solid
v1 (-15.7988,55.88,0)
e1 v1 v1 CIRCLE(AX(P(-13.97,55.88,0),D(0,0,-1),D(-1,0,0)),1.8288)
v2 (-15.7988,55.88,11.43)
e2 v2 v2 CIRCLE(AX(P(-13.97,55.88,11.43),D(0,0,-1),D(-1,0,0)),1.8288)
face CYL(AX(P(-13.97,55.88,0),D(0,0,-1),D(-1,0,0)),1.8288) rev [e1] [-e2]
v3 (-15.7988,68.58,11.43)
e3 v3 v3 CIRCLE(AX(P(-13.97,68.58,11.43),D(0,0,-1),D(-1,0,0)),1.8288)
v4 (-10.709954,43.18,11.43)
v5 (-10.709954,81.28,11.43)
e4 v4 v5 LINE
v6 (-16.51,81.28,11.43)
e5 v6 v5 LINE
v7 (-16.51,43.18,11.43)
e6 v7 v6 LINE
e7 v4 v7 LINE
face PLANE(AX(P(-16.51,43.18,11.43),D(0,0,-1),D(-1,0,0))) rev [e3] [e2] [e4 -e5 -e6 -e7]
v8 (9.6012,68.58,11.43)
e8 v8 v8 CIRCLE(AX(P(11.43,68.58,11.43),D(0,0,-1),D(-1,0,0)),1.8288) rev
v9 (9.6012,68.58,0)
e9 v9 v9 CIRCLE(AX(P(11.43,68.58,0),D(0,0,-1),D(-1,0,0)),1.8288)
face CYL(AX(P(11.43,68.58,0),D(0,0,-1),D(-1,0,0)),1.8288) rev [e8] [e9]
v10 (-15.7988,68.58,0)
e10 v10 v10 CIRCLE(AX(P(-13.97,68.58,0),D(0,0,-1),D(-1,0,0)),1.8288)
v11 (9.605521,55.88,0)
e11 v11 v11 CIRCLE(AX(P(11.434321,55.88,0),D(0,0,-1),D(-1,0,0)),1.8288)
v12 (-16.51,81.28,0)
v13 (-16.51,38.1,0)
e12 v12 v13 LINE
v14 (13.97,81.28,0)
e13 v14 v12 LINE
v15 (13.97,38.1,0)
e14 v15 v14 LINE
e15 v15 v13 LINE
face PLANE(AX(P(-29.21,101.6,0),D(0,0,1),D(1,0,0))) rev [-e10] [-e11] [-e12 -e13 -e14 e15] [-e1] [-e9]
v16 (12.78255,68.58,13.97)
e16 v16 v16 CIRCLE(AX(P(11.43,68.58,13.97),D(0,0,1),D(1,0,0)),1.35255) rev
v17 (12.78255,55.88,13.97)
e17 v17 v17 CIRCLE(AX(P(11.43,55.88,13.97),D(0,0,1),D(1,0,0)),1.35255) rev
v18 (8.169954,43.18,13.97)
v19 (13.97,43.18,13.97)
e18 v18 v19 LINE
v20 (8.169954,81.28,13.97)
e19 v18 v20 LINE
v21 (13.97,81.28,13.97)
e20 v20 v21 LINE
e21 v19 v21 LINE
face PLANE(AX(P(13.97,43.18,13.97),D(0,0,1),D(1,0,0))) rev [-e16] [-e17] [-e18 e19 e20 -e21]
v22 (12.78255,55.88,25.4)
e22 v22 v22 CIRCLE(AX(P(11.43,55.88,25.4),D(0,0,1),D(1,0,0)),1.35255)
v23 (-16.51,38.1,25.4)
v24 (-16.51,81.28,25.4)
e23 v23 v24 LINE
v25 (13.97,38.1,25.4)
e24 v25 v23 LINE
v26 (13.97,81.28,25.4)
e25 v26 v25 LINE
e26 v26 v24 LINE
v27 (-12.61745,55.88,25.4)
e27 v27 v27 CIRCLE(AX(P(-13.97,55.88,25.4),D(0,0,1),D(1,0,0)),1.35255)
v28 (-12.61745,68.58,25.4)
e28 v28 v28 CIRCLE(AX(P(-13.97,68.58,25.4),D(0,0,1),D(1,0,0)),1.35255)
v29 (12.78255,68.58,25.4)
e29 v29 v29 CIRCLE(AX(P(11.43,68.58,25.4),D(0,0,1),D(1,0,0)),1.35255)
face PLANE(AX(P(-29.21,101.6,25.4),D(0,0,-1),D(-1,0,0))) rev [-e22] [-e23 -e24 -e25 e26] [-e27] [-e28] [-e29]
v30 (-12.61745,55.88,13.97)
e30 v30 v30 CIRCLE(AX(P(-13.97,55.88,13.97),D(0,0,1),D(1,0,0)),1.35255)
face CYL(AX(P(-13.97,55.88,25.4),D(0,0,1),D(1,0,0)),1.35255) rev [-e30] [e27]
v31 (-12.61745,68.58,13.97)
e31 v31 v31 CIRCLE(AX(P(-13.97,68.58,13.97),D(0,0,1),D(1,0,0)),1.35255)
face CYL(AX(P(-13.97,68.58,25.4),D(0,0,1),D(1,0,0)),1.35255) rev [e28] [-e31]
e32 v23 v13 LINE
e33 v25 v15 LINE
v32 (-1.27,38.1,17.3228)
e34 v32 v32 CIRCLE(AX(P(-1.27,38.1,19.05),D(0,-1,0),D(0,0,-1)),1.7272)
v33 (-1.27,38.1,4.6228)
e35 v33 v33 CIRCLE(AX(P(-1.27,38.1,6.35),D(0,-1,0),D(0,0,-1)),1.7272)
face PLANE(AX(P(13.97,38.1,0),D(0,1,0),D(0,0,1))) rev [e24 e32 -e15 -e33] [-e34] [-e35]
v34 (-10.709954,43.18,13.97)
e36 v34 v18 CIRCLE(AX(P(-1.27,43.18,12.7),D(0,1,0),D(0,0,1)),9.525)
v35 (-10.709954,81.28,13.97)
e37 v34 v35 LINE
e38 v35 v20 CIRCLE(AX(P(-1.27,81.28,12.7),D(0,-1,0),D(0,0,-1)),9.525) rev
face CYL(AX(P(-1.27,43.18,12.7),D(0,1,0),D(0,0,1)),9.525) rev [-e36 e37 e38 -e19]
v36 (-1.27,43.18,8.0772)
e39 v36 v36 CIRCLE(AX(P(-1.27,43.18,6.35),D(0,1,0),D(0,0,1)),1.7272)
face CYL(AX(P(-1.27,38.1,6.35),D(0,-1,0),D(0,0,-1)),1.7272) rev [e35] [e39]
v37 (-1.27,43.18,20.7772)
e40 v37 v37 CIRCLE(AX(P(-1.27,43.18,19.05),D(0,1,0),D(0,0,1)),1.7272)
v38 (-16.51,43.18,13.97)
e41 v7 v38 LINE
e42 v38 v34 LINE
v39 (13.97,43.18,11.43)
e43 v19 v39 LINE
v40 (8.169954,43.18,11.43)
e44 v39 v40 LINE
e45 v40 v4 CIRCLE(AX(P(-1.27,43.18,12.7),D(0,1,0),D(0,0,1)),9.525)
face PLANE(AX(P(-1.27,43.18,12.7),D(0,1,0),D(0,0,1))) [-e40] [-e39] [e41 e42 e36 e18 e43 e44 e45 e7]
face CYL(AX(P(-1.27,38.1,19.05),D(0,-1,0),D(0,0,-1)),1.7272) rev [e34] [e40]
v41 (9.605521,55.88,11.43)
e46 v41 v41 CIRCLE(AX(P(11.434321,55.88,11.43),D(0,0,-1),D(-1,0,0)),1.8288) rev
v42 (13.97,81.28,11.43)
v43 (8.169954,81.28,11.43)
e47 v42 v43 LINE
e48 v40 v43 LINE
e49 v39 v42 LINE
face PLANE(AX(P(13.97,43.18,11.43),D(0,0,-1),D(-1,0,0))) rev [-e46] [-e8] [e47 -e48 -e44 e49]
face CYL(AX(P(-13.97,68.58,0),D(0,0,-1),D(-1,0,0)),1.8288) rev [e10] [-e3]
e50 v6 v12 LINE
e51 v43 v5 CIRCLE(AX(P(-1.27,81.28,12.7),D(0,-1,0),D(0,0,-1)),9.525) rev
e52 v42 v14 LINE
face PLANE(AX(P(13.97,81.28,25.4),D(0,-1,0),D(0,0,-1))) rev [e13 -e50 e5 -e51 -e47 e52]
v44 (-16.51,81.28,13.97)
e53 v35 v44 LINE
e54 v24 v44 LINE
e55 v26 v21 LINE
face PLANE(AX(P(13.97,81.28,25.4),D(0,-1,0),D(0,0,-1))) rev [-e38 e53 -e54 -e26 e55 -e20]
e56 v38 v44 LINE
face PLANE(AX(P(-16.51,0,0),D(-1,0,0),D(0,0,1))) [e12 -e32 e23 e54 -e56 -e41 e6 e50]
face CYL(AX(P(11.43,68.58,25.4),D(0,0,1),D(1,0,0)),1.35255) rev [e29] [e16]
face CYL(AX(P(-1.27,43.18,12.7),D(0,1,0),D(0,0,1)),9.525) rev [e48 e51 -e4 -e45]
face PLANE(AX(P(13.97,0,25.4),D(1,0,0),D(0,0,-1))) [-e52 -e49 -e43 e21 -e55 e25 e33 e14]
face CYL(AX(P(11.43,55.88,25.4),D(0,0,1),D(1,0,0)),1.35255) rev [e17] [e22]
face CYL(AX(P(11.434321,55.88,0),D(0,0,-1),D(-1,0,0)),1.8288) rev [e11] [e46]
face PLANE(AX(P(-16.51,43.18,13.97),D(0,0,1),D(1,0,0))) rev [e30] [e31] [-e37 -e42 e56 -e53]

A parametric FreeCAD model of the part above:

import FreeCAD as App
import Part
import Sketcher
from FreeCAD import Vector
Q = App.Units.Quantity


def add_polygon(sketch, points):
    """Adds a closed chain of lines whose ends are joined by coincident constraints."""
    first, n = sketch.GeometryCount, len(points)
    for a, b in zip(points, points[1:] + points[:1]):
        sketch.addGeometry(Part.LineSegment(App.Vector(*a, 0), App.Vector(*b, 0)), False)
    for i in range(n):
        sketch.addConstraint(Sketcher.Constraint("Coincident", first + i, 2, first + (i + 1) % n, 1))

doc = App.newDocument("Part")
body = doc.addObject("PartDesign::Body", "Body")

sketch1 = body.newObject("Sketcher::SketchObject", "Sketch")
sketch1.AttachmentSupport = (doc.getObject("XZ_Plane"), [""])
sketch1.MapMode = "FlatFace"
add_polygon(sketch1, [(-29.21, 0), (-29.21, 25.4), (26.67, 25.4), (26.67, 0)])
sketch1.addConstraint([
    Sketcher.Constraint("Vertical", 0),
    Sketcher.Constraint("Horizontal", 1),
    Sketcher.Constraint("Vertical", 2),
    Sketcher.Constraint("Horizontal", 3),
    Sketcher.Constraint("PointOnObject", 2, 2, -1),
    Sketcher.Constraint("DistanceY", 0, 1, 0, 2, Q("1 in")),
    Sketcher.Constraint("DistanceX", 1, 1, 1, 2, Q("2.2 in")),
    Sketcher.Constraint("DistanceX", 0, 2, -1, 1, Q("1.15 in")),
])
pad1 = body.newObject("PartDesign::Pad", "Pad")
pad1.Profile = sketch1
pad1.Length = Q("4 in")
pad1.Reversed = True

sketch2 = body.newObject("Sketcher::SketchObject", "Sketch001")
sketch2.AttachmentSupport = (doc.getObject("XZ_Plane"), [""])
sketch2.MapMode = "FlatFace"
sketch2.AttachmentOffset = App.Placement(Vector(0, 0, -4 * 25.4), App.Rotation())
sketch2.addGeometry(Part.Circle(Vector(-1.27, 12.7, 0), Vector(0, 0, 1), 9.525), False)
sketch2.addConstraint([
    Sketcher.Constraint("Diameter", 0, Q("0.75 in")),
    Sketcher.Constraint("DistanceY", -1, 1, 0, 3, Q("0.5 in")),
    Sketcher.Constraint("DistanceX", 0, 3, -1, 1, Q("0.05 in")),
])
pocket1 = body.newObject("PartDesign::Pocket", "Pocket")
pocket1.Profile = sketch2
pocket1.Length = Q("2.3 in")
pocket1.Reversed = True

sketch3 = body.newObject("Sketcher::SketchObject", "Sketch002")
sketch3.AttachmentSupport = (doc.getObject("YZ_Plane"), [""])
sketch3.MapMode = "FlatFace"
sketch3.AttachmentOffset = App.Placement(Vector(0, 0, 1.05 * 25.4), App.Rotation())
add_polygon(sketch3, [(101.6, 25.4), (0, 25.4), (0, 0), (101.6, 0)])
sketch3.addConstraint([
    Sketcher.Constraint("Horizontal", 0),
    Sketcher.Constraint("Vertical", 1),
    Sketcher.Constraint("Horizontal", 2),
    Sketcher.Constraint("Vertical", 3),
    Sketcher.Constraint("Coincident", 1, 2, -1, 1),
    Sketcher.Constraint("DistanceX", 0, 2, 0, 1, Q("4 in")),
    Sketcher.Constraint("DistanceY", 1, 2, 1, 1, Q("1 in")),
])
pocket2 = body.newObject("PartDesign::Pocket", "Pocket001")
pocket2.Profile = sketch3
pocket2.Length = Q("0.5 in")

sketch4 = body.newObject("Sketcher::SketchObject", "Sketch003")
sketch4.AttachmentSupport = (doc.getObject("YZ_Plane"), [""])
sketch4.MapMode = "FlatFace"
sketch4.AttachmentOffset = App.Placement(Vector(0, 0, -1.15 * 25.4), App.Rotation())
add_polygon(sketch4, [(101.6, 0), (0, 0), (0, 25.4), (101.6, 25.4)])
sketch4.addConstraint([
    Sketcher.Constraint("Horizontal", 0),
    Sketcher.Constraint("Vertical", 1),
    Sketcher.Constraint("Horizontal", 2),
    Sketcher.Constraint("Vertical", 3),
    Sketcher.Constraint("Coincident", 0, 2, -1, 1),
    Sketcher.Constraint("DistanceX", 0, 2, 0, 1, Q("4 in")),
    Sketcher.Constraint("DistanceY", 1, 1, 1, 2, Q("1 in")),
])
pocket3 = body.newObject("PartDesign::Pocket", "Pocket002")
pocket3.Profile = sketch4
pocket3.Length = Q("0.5 in")
pocket3.Reversed = True

sketch5 = body.newObject("Sketcher::SketchObject", "Sketch004")
sketch5.AttachmentSupport = (doc.getObject("XZ_Plane"), [""])
sketch5.MapMode = "FlatFace"
sketch5.AttachmentOffset = App.Placement(Vector(0, 0, -4 * 25.4), App.Rotation())
add_polygon(sketch5, [(13.97, 13.97), (13.97, 11.43), (8.169954, 11.43), (8.169954, 13.97)])
sketch5.addConstraint([
    Sketcher.Constraint("Vertical", 0),
    Sketcher.Constraint("Horizontal", 1),
    Sketcher.Constraint("Vertical", 2),
    Sketcher.Constraint("Horizontal", 3),
    Sketcher.Constraint("DistanceY", 0, 2, 0, 1, Q("0.1 in")),
    Sketcher.Constraint("DistanceX", -1, 1, 0, 2, Q("0.55 in")),
    Sketcher.Constraint("DistanceY", -1, 1, 0, 2, Q("0.45 in")),
    Sketcher.Constraint("DistanceX", 1, 2, 1, 1, Q("5.800046 mm")),
])
pocket4 = body.newObject("PartDesign::Pocket", "Pocket003")
pocket4.Profile = sketch5
pocket4.Length = Q("2.3 in")
pocket4.Reversed = True

sketch6 = body.newObject("Sketcher::SketchObject", "Sketch005")
sketch6.AttachmentSupport = (doc.getObject("XY_Plane"), [""])
sketch6.MapMode = "FlatFace"
sketch6.addGeometry(Part.Circle(Vector(11.43, 68.58, 0), Vector(0, 0, 1), 1.8288), False)
sketch6.addConstraint([
    Sketcher.Constraint("Diameter", 0, Q("0.144 in")),
    Sketcher.Constraint("DistanceY", -1, 1, 0, 3, Q("2.7 in")),
    Sketcher.Constraint("DistanceX", -1, 1, 0, 3, Q("0.45 in")),
])
doc.recompute()
hole = body.newObject("PartDesign::Hole", "Hole")
hole.Profile = sketch6
hole.ThreadType = "None"
hole.Diameter = Q("0.144 in")
hole.DepthType = "Dimension"
hole.Depth = Q("0.55 in")
hole.DrillPoint = "Flat"
hole.Reversed = True

sketch7 = body.newObject("Sketcher::SketchObject", "Sketch006")
sketch7.AttachmentSupport = (doc.getObject("XY_Plane"), [""])
sketch7.MapMode = "FlatFace"
sketch7.addGeometry(Part.Circle(Vector(11.434321, 55.88, 0), Vector(0, 0, 1), 1.8288), False)
sketch7.addConstraint([
    Sketcher.Constraint("Diameter", 0, Q("0.144 in")),
    Sketcher.Constraint("DistanceY", -1, 1, 0, 3, Q("2.2 in")),
    Sketcher.Constraint("DistanceX", -1, 1, 0, 3, Q("11.434321 mm")),
])
doc.recompute()
hole2 = body.newObject("PartDesign::Hole", "Hole001")
hole2.Profile = sketch7
hole2.ThreadType = "None"
hole2.Diameter = Q("0.144 in")
hole2.DepthType = "Dimension"
hole2.Depth = Q("0.55 in")
hole2.DrillPoint = "Flat"
hole2.Reversed = True

sketch8 = body.newObject("Sketcher::SketchObject", "Sketch007")
sketch8.AttachmentSupport = (doc.getObject("XY_Plane"), [""])
sketch8.MapMode = "FlatFace"
sketch8.AttachmentOffset = App.Placement(Vector(0, 0, 1 * 25.4), App.Rotation())
sketch8.addGeometry(Part.Circle(Vector(11.43, 68.58, 0), Vector(0, 0, 1), 1.35255), False)
sketch8.addConstraint([
    Sketcher.Constraint("Diameter", 0, Q("0.1065 in")),
    Sketcher.Constraint("DistanceY", -1, 1, 0, 3, Q("2.7 in")),
    Sketcher.Constraint("DistanceX", -1, 1, 0, 3, Q("0.45 in")),
])
doc.recompute()
hole3 = body.newObject("PartDesign::Hole", "Hole002")
hole3.Profile = sketch8
hole3.ThreadType = "None"
hole3.Diameter = Q("0.1065 in")
hole3.DepthType = "Dimension"
hole3.Depth = Q("0.45 in")
hole3.DrillPoint = "Angled"
hole3.DrillPointAngle = 118

sketch9 = body.newObject("Sketcher::SketchObject", "Sketch008")
sketch9.AttachmentSupport = (doc.getObject("XY_Plane"), [""])
sketch9.MapMode = "FlatFace"
sketch9.AttachmentOffset = App.Placement(Vector(0, 0, 1 * 25.4), App.Rotation())
sketch9.addGeometry(Part.Circle(Vector(11.43, 55.88, 0), Vector(0, 0, 1), 1.35255), False)
sketch9.addConstraint([
    Sketcher.Constraint("Diameter", 0, Q("0.1065 in")),
    Sketcher.Constraint("DistanceY", -1, 1, 0, 3, Q("2.2 in")),
    Sketcher.Constraint("DistanceX", -1, 1, 0, 3, Q("0.45 in")),
])
doc.recompute()
hole4 = body.newObject("PartDesign::Hole", "Hole003")
hole4.Profile = sketch9
hole4.ThreadType = "None"
hole4.Diameter = Q("0.1065 in")
hole4.DepthType = "Dimension"
hole4.Depth = Q("0.45 in")
hole4.DrillPoint = "Angled"
hole4.DrillPointAngle = 118

sketch10 = body.newObject("Sketcher::SketchObject", "Sketch009")
sketch10.AttachmentSupport = (doc.getObject("YZ_Plane"), [""])
sketch10.MapMode = "FlatFace"
sketch10.AttachmentOffset = App.Placement(Vector(0, 0, -1.15 * 25.4), App.Rotation())
add_polygon(sketch10, [(38.1, 0), (0, 0), (0, 25.4), (38.1, 25.4)])
sketch10.addConstraint([
    Sketcher.Constraint("Horizontal", 0),
    Sketcher.Constraint("Vertical", 1),
    Sketcher.Constraint("Horizontal", 2),
    Sketcher.Constraint("Vertical", 3),
    Sketcher.Constraint("Coincident", 0, 2, -1, 1),
    Sketcher.Constraint("DistanceY", 1, 1, 1, 2, Q("1 in")),
    Sketcher.Constraint("DistanceX", 0, 2, 0, 1, Q("1.5 in")),
])
pocket5 = body.newObject("PartDesign::Pocket", "Pocket004")
pocket5.Profile = sketch10
pocket5.Type = "ThroughAll"
pocket5.Reversed = True

sketch11 = body.newObject("Sketcher::SketchObject", "Sketch010")
sketch11.AttachmentSupport = (doc.getObject("XZ_Plane"), [""])
sketch11.MapMode = "FlatFace"
sketch11.AttachmentOffset = App.Placement(Vector(0, 0, -1.5 * 25.4), App.Rotation())
sketch11.addGeometry(Part.Circle(Vector(-1.27, 19.05, 0), Vector(0, 0, 1), 1.7272), False)
sketch11.addConstraint([
    Sketcher.Constraint("Diameter", 0, Q("0.136 in")),
    Sketcher.Constraint("DistanceX", 0, 3, -1, 1, Q("0.05 in")),
    Sketcher.Constraint("DistanceY", -1, 1, 0, 3, Q("0.75 in")),
])
doc.recompute()
hole5 = body.newObject("PartDesign::Hole", "Hole004")
hole5.Profile = sketch11
hole5.ThreadType = "None"
hole5.Diameter = Q("0.136 in")
hole5.DepthType = "ThroughAll"
doc.recompute()

datumline = body.newObject("PartDesign::Line", "DatumLine")
datumline.Placement = App.Placement(Vector(-1.27, 0, 12.7), App.Rotation(Vector(0, 0, 1), Vector(0, 1, 0)))
polarpattern = body.newObject("PartDesign::PolarPattern", "PolarPattern")
polarpattern.Originals = [hole5]
polarpattern.Axis = (datumline, [""])
polarpattern.Angle = 360
polarpattern.Occurrences = 2
body.Tip = polarpattern

sketch12 = body.newObject("Sketcher::SketchObject", "Sketch011")
sketch12.AttachmentSupport = (doc.getObject("XY_Plane"), [""])
sketch12.MapMode = "FlatFace"
add_polygon(sketch12, [(13.97, 101.6), (13.97, 81.28), (-16.51, 81.28), (-16.51, 101.6)])
sketch12.addConstraint([
    Sketcher.Constraint("Vertical", 0),
    Sketcher.Constraint("Horizontal", 1),
    Sketcher.Constraint("Vertical", 2),
    Sketcher.Constraint("Horizontal", 3),
    Sketcher.Constraint("DistanceX", 1, 2, 1, 1, Q("1.2 in")),
    Sketcher.Constraint("DistanceY", 0, 2, 0, 1, Q("0.8 in")),
    Sketcher.Constraint("DistanceY", -1, 1, 2, 2, Q("4 in")),
    Sketcher.Constraint("DistanceX", -1, 1, 0, 2, Q("0.55 in")),
])
pocket6 = body.newObject("PartDesign::Pocket", "Pocket005")
pocket6.Profile = sketch12
pocket6.Type = "ThroughAll"
pocket6.Reversed = True
doc.recompute()

datumline2 = body.newObject("PartDesign::Line", "DatumLine001")
datumline2.Placement = App.Placement(Vector(-1.27, 0, 12.7), App.Rotation(Vector(0, 0, 1), Vector(0, 1, 0)))
polarpattern2 = body.newObject("PartDesign::PolarPattern", "PolarPattern001")
polarpattern2.Originals = [pocket4]
polarpattern2.Axis = (datumline2, [""])
polarpattern2.Angle = 360
polarpattern2.Occurrences = 2
body.Tip = polarpattern2

sketch13 = body.newObject("Sketcher::SketchObject", "Sketch012")
sketch13.AttachmentSupport = (doc.getObject("XY_Plane"), [""])
sketch13.MapMode = "FlatFace"
sketch13.AttachmentOffset = App.Placement(Vector(0, 0, 1 * 25.4), App.Rotation())
sketch13.addGeometry(Part.Circle(Vector(-13.97, 68.58, 0), Vector(0, 0, 1), 1.35255), False)
sketch13.addConstraint([
    Sketcher.Constraint("Diameter", 0, Q("0.1065 in")),
    Sketcher.Constraint("DistanceY", -1, 1, 0, 3, Q("2.7 in")),
    Sketcher.Constraint("DistanceX", 0, 3, -1, 1, Q("0.55 in")),
])
doc.recompute()
hole6 = body.newObject("PartDesign::Hole", "Hole005")
hole6.Profile = sketch13
hole6.ThreadType = "None"
hole6.Diameter = Q("0.1065 in")
hole6.DepthType = "Dimension"
hole6.Depth = Q("0.55 in")
hole6.DrillPoint = "Flat"

sketch14 = body.newObject("Sketcher::SketchObject", "Sketch013")
sketch14.AttachmentSupport = (doc.getObject("XY_Plane"), [""])
sketch14.MapMode = "FlatFace"
sketch14.AttachmentOffset = App.Placement(Vector(0, 0, 1 * 25.4), App.Rotation())
sketch14.addGeometry(Part.Circle(Vector(-13.97, 55.88, 0), Vector(0, 0, 1), 1.35255), False)
sketch14.addConstraint([
    Sketcher.Constraint("Diameter", 0, Q("0.1065 in")),
    Sketcher.Constraint("DistanceY", -1, 1, 0, 3, Q("2.2 in")),
    Sketcher.Constraint("DistanceX", 0, 3, -1, 1, Q("0.55 in")),
])
doc.recompute()
hole7 = body.newObject("PartDesign::Hole", "Hole006")
hole7.Profile = sketch14
hole7.ThreadType = "None"
hole7.Diameter = Q("0.1065 in")
hole7.DepthType = "Dimension"
hole7.Depth = Q("0.55 in")
hole7.DrillPoint = "Flat"

sketch15 = body.newObject("Sketcher::SketchObject", "Sketch014")
sketch15.AttachmentSupport = (doc.getObject("XY_Plane"), [""])
sketch15.MapMode = "FlatFace"
sketch15.addGeometry(Part.Circle(Vector(-13.97, 68.58, 0), Vector(0, 0, 1), 1.8288), False)
sketch15.addConstraint([
    Sketcher.Constraint("Diameter", 0, Q("0.144 in")),
    Sketcher.Constraint("DistanceY", -1, 1, 0, 3, Q("2.7 in")),
    Sketcher.Constraint("DistanceX", 0, 3, -1, 1, Q("0.55 in")),
])
doc.recompute()
hole8 = body.newObject("PartDesign::Hole", "Hole007")
hole8.Profile = sketch15
hole8.ThreadType = "None"
hole8.Diameter = Q("0.144 in")
hole8.DepthType = "Dimension"
hole8.Depth = Q("0.55 in")
hole8.DrillPoint = "Flat"
hole8.Reversed = True

sketch16 = body.newObject("Sketcher::SketchObject", "Sketch015")
sketch16.AttachmentSupport = (doc.getObject("XY_Plane"), [""])
sketch16.MapMode = "FlatFace"
sketch16.addGeometry(Part.Circle(Vector(-13.97, 55.88, 0), Vector(0, 0, 1), 1.8288), False)
sketch16.addConstraint([
    Sketcher.Constraint("Diameter", 0, Q("0.144 in")),
    Sketcher.Constraint("DistanceY", -1, 1, 0, 3, Q("2.2 in")),
    Sketcher.Constraint("DistanceX", 0, 3, -1, 1, Q("0.55 in")),
])
doc.recompute()
hole9 = body.newObject("PartDesign::Hole", "Hole008")
hole9.Profile = sketch16
hole9.ThreadType = "None"
hole9.Diameter = Q("0.144 in")
hole9.DepthType = "Dimension"
hole9.Depth = Q("0.55 in")
hole9.DrillPoint = "Flat"
hole9.Reversed = True

doc.recompute()
